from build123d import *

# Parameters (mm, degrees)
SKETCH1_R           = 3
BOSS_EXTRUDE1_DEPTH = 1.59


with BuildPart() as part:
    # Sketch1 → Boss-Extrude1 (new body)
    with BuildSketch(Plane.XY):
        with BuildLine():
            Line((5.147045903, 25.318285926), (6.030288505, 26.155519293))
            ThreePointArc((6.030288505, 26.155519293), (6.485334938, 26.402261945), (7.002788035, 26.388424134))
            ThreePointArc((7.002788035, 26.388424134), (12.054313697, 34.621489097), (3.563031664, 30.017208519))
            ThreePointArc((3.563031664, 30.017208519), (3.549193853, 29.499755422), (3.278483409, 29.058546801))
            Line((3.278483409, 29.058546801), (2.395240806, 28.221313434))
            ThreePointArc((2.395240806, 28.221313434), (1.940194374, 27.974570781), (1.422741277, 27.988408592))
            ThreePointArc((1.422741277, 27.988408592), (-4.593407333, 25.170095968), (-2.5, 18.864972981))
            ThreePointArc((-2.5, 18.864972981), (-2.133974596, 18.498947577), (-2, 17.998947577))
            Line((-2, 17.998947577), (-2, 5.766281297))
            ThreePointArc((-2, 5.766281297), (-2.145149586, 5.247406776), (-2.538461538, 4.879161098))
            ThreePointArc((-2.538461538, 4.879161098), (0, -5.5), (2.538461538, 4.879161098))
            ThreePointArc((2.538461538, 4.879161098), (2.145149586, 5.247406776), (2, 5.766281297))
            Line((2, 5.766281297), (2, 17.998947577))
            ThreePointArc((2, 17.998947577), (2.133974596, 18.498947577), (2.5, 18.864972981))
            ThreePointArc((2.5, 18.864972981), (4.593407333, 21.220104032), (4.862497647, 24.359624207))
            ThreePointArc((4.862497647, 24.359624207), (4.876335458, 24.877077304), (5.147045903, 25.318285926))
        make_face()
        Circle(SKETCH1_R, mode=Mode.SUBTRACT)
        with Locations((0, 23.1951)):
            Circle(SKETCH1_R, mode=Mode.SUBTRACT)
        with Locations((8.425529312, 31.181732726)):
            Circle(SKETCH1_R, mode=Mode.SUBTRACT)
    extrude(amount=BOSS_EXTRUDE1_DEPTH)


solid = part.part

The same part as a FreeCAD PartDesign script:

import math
import FreeCAD as App
import Part
import Sketcher

V = App.Vector

doc = App.newDocument("Part")
body = doc.addObject("PartDesign::Body", "Body")

# Sketch on XY plane
sketch1 = body.newObject("Sketcher::SketchObject", "Sketch")
sketch1.AttachmentSupport = (doc.getObject("XY_Plane"), [""])
sketch1.MapMode = "FlatFace"
sketch1.addGeometry([
    Part.LineSegment(V(5.147046, 25.318286, 0), V(6.030289, 26.155519, 0)),  # 0
    Part.ArcOfCircle(Part.Circle(V(6.71824, 25.429762, 0), V(0, 0, 1), 1), math.radians(73.468153), math.radians(133.468152)),  # 1
    Part.ArcOfCircle(Part.Circle(V(8.425529, 31.181733, 0), V(0, 0, 1), 5), math.radians(-106.531848), math.radians(193.468152)),  # 2
    Part.ArcOfCircle(Part.Circle(V(2.590532, 29.784304, 0), V(0, 0, 1), 1), math.radians(-46.531848), math.radians(13.468152)),  # 3
    Part.LineSegment(V(3.278483, 29.058547, 0), V(2.395241, 28.221313, 0)),  # 4
    Part.ArcOfCircle(Part.Circle(V(1.70729, 28.94707, 0), V(0, 0, 1), 1), math.radians(-106.531848), math.radians(-46.531847)),  # 5
    Part.ArcOfCircle(Part.Circle(V(0, 23.1951, 0), V(0, 0, 1), 5), math.radians(73.468152), math.radians(240)),  # 6
    Part.ArcOfCircle(Part.Circle(V(-3, 17.998948, 0), V(0, 0, 1), 1), math.radians(0), math.radians(60)),  # 7
    Part.LineSegment(V(-2, 17.998948, 0), V(-2, 5.766281, 0)),  # 8
    Part.ArcOfCircle(Part.Circle(V(-3, 5.766281, 0), V(0, 0, 1), 1), math.radians(-62.513574), math.radians(0)),  # 9
    Part.ArcOfCircle(Part.Circle(V(0, 0, 0), V(0, 0, 1), 5.5), math.radians(117.486426), math.radians(422.513574)),  # 10
    Part.ArcOfCircle(Part.Circle(V(3, 5.766281, 0), V(0, 0, 1), 1), math.radians(-180), math.radians(-117.486426)),  # 11
    Part.LineSegment(V(2, 5.766281, 0), V(2, 17.998948, 0)),  # 12
    Part.ArcOfCircle(Part.Circle(V(3, 17.998948, 0), V(0, 0, 1), 1), math.radians(120), math.radians(180)),  # 13
    Part.ArcOfCircle(Part.Circle(V(0, 23.1951, 0), V(0, 0, 1), 5), math.radians(-60), math.radians(13.468152)),  # 14
    Part.ArcOfCircle(Part.Circle(V(5.834997, 24.592529, 0), V(0, 0, 1), 1), math.radians(133.468152), math.radians(193.468152)),  # 15
    Part.Circle(V(0, 0, 0), V(0, 0, 1), 3),  # 16
    Part.Circle(V(0, 23.1951, 0), V(0, 0, 1), 3),  # 17
    Part.Circle(V(8.425529, 31.181733, 0), V(0, 0, 1), 3),  # 18
], False)
sketch1.addConstraint([
    Sketcher.Constraint("Coincident", 0, 2, 1, 2),
    Sketcher.Constraint("Coincident", 1, 1, 2, 1),
    Sketcher.Constraint("Coincident", 2, 2, 3, 2),
    Sketcher.Constraint("Coincident", 3, 1, 4, 1),
    Sketcher.Constraint("Coincident", 4, 2, 5, 2),
    Sketcher.Constraint("Coincident", 5, 1, 6, 1),
    Sketcher.Constraint("Coincident", 6, 2, 7, 2),
    Sketcher.Constraint("Coincident", 7, 1, 8, 1),
    Sketcher.Constraint("Coincident", 8, 2, 9, 2),
    Sketcher.Constraint("Coincident", 9, 1, 10, 1),
    Sketcher.Constraint("Coincident", 10, 2, 11, 2),
    Sketcher.Constraint("Coincident", 11, 1, 12, 1),
    Sketcher.Constraint("Coincident", 12, 2, 13, 2),
    Sketcher.Constraint("Coincident", 13, 1, 14, 1),
    Sketcher.Constraint("Coincident", 14, 2, 15, 2),
    Sketcher.Constraint("Coincident", 15, 1, 0, 1),
    Sketcher.Constraint("Vertical", 8),
    Sketcher.Constraint("Vertical", 12),
    Sketcher.Constraint("Coincident", 10, 3, -1, 1),
    Sketcher.Constraint("Coincident", 16, 3, -1, 1),
    Sketcher.Constraint("Coincident", 14, 3, 6, 3),
    Sketcher.Constraint("Coincident", 17, 3, 6, 3),
    Sketcher.Constraint("Coincident", 18, 3, 2, 3),
    Sketcher.Constraint("PointOnObject", 6, 3, -2),
    Sketcher.Constraint("Diameter", 16, 6.0),
    Sketcher.Constraint("Diameter", 17, 6.0),
    Sketcher.Constraint("Diameter", 18, 6.0),
    Sketcher.Constraint("Radius", 1, 1.0),
    Sketcher.Constraint("Radius", 2, 5.0),
    Sketcher.Constraint("Radius", 3, 1.0),
    Sketcher.Constraint("Radius", 5, 1.0),
    Sketcher.Constraint("Radius", 6, 5.0),
    Sketcher.Constraint("Radius", 7, 1.0),
    Sketcher.Constraint("Radius", 9, 1.0),
    Sketcher.Constraint("Radius", 11, 1.0),
    Sketcher.Constraint("Radius", 13, 1.0),
    Sketcher.Constraint("Radius", 14, 5.0),
    Sketcher.Constraint("Radius", 15, 1.0),
    Sketcher.Constraint("Radius", 10, 5.5),
    Sketcher.Constraint("DistanceX", 7, 3, -1, 1, 3.0),
    Sketcher.Constraint("DistanceX", -1, 1, 11, 3, 3.0),
    Sketcher.Constraint("DistanceX", 6, 2, 13, 1, 5.0),
    Sketcher.Constraint("DistanceX", 6, 2, -1, 1, 2.5),
    Sketcher.Constraint("DistanceX", 5, 3, 0, 2, 4.322999),
    Sketcher.Constraint("DistanceY", -1, 1, 6, 3, 23.1951),
    Sketcher.Constraint("DistanceX", 0, 2, 1, 1, 0.9725),
    Sketcher.Constraint("DistanceX", 3, 3, 2, 2, 0.9725),
    Sketcher.Constraint("DistanceX", 5, 1, 4, 2, 0.9725),
    Sketcher.Constraint("DistanceY", 5, 1, 2, 2, 2.0288),
    Sketcher.Constraint("DistanceX", 14, 2, 15, 3, 0.9725),
    Sketcher.Constraint("DistanceY", 14, 2, 1, 1, 2.0288),
    Sketcher.Constraint("DistanceY", 8, 2, 8, 1, 12.232666),
    Sketcher.Constraint("DistanceY", 12, 1, 12, 2, 12.232666),
    Sketcher.Constraint("DistanceX", -1, 1, 1, 3, 6.71824),
    Sketcher.Constraint("DistanceX", -1, 1, 2, 3, 8.425529),
    Sketcher.Constraint("DistanceX", -1, 1, 5, 3, 1.70729),
    Sketcher.Constraint("DistanceY", -1, 1, 15, 3, 24.592529),
    Sketcher.Constraint("DistanceX", -1, 1, 2, 2, 3.563032),
    Sketcher.Constraint("DistanceY", -1, 1, 8, 2, 5.766281),
    Sketcher.Constraint("DistanceX", 9, 1, -1, 1, 2.538462),
    Sketcher.Constraint("DistanceX", -1, 1, 10, 2, 2.538462),
    Sketcher.Constraint("DistanceY", -1, 1, 11, 1, 5.766281),
    Sketcher.Constraint("DistanceX", 3, 3, 3, 1, 0.687951),
    Sketcher.Constraint("DistanceX", 15, 1, 15, 3, 0.687951),
])
pad1 = body.newObject("PartDesign::Pad", "Pad")
pad1.Profile = sketch1
pad1.Length = 1.59

doc.recompute()
